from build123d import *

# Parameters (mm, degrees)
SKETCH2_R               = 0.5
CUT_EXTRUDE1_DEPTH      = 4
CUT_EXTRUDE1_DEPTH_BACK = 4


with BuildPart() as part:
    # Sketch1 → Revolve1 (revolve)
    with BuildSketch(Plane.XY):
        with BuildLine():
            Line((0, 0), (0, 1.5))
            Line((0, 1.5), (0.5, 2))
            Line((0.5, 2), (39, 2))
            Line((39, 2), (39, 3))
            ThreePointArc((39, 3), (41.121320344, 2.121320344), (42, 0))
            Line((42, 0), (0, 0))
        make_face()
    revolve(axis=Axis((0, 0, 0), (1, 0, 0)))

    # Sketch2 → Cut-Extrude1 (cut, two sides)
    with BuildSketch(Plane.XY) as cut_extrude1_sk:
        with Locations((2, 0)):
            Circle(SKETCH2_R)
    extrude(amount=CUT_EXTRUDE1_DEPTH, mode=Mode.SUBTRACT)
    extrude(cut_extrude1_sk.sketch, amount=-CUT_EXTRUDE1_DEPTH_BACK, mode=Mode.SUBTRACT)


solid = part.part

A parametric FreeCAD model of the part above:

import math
import FreeCAD as App
import Part
import Sketcher
from FreeCAD import Vector
Q = App.Units.Quantity

doc = App.newDocument("Part")
body = doc.addObject("PartDesign::Body", "Body")

sketch1 = doc.addObject("Sketcher::SketchObject", "Sketch")
body.addObject(sketch1)
sketch1.AttachmentSupport = (doc.XY_Plane, [""])
sketch1.MapMode = "FlatFace"
sketch1.addGeometry([
    Part.LineSegment(Vector(0, 1.5, 0), Vector(0, 0, 0)),
    Part.LineSegment(Vector(0, 0, 0), Vector(42, 0, 0)),
    Part.ArcOfCircle(Part.Circle(Vector(39, 0, 0), Vector(0, 0, 1), 3), math.radians(0), math.radians(90)),
    Part.LineSegment(Vector(39, 3, 0), Vector(39, 2, 0)),
    Part.LineSegment(Vector(39, 2, 0), Vector(0.5, 2, 0)),
    Part.LineSegment(Vector(0.5, 2, 0), Vector(0, 1.5, 0)),
], False)
sketch1.addConstraint([
    Sketcher.Constraint("Coincident", 0, 2, 1, 1),
    Sketcher.Constraint("Coincident", 1, 2, 2, 1),
    Sketcher.Constraint("Coincident", 2, 2, 3, 1),
    Sketcher.Constraint("Coincident", 3, 2, 4, 1),
    Sketcher.Constraint("Coincident", 4, 2, 5, 1),
    Sketcher.Constraint("Coincident", 5, 2, 0, 1),
    Sketcher.Constraint("Vertical", 0),
    Sketcher.Constraint("Horizontal", 1),
    Sketcher.Constraint("Vertical", 3),
    Sketcher.Constraint("Horizontal", 4),
    Sketcher.Constraint("Coincident", 0, 2, -1, 1),
    Sketcher.Constraint("PointOnObject", 2, 3, -1),
    Sketcher.Constraint("Radius", 2, Q("3 mm")),
    Sketcher.Constraint("DistanceX", 1, 1, 1, 2, Q("42 mm")),
    Sketcher.Constraint("DistanceY", 3, 2, 3, 1, Q("1 mm")),
    Sketcher.Constraint("Angle", 5, Q("-135 deg")),
    Sketcher.Constraint("DistanceX", 4, 2, 4, 1, Q("38.5 mm")),
    Sketcher.Constraint("DistanceY", 0, 2, 0, 1, Q("1.5 mm")),
])
revolution = doc.addObject("PartDesign::Revolution", "Revolution")
body.addObject(revolution)
revolution.Profile = sketch1
revolution.ReferenceAxis = (sketch1, ["H_Axis"])
revolution.Angle = 360

sketch2 = doc.addObject("Sketcher::SketchObject", "Sketch001")
body.addObject(sketch2)
sketch2.AttachmentSupport = (doc.XY_Plane, [""])
sketch2.MapMode = "FlatFace"
sketch2.addGeometry(Part.Circle(Vector(2, 0, 0), Vector(0, 0, 1), 0.5), False)
sketch2.addConstraint([
    Sketcher.Constraint("PointOnObject", 0, 3, -1),
    Sketcher.Constraint("Diameter", 0, Q("1 mm")),
    Sketcher.Constraint("DistanceX", -1, 1, 0, 3, Q("2 mm")),
])
pocket1 = doc.addObject("PartDesign::Pocket", "Pocket")
body.addObject(pocket1)
pocket1.Profile = sketch2
pocket1.Type = "ThroughAll"
pocket1.Midplane = True

doc.recompute()
